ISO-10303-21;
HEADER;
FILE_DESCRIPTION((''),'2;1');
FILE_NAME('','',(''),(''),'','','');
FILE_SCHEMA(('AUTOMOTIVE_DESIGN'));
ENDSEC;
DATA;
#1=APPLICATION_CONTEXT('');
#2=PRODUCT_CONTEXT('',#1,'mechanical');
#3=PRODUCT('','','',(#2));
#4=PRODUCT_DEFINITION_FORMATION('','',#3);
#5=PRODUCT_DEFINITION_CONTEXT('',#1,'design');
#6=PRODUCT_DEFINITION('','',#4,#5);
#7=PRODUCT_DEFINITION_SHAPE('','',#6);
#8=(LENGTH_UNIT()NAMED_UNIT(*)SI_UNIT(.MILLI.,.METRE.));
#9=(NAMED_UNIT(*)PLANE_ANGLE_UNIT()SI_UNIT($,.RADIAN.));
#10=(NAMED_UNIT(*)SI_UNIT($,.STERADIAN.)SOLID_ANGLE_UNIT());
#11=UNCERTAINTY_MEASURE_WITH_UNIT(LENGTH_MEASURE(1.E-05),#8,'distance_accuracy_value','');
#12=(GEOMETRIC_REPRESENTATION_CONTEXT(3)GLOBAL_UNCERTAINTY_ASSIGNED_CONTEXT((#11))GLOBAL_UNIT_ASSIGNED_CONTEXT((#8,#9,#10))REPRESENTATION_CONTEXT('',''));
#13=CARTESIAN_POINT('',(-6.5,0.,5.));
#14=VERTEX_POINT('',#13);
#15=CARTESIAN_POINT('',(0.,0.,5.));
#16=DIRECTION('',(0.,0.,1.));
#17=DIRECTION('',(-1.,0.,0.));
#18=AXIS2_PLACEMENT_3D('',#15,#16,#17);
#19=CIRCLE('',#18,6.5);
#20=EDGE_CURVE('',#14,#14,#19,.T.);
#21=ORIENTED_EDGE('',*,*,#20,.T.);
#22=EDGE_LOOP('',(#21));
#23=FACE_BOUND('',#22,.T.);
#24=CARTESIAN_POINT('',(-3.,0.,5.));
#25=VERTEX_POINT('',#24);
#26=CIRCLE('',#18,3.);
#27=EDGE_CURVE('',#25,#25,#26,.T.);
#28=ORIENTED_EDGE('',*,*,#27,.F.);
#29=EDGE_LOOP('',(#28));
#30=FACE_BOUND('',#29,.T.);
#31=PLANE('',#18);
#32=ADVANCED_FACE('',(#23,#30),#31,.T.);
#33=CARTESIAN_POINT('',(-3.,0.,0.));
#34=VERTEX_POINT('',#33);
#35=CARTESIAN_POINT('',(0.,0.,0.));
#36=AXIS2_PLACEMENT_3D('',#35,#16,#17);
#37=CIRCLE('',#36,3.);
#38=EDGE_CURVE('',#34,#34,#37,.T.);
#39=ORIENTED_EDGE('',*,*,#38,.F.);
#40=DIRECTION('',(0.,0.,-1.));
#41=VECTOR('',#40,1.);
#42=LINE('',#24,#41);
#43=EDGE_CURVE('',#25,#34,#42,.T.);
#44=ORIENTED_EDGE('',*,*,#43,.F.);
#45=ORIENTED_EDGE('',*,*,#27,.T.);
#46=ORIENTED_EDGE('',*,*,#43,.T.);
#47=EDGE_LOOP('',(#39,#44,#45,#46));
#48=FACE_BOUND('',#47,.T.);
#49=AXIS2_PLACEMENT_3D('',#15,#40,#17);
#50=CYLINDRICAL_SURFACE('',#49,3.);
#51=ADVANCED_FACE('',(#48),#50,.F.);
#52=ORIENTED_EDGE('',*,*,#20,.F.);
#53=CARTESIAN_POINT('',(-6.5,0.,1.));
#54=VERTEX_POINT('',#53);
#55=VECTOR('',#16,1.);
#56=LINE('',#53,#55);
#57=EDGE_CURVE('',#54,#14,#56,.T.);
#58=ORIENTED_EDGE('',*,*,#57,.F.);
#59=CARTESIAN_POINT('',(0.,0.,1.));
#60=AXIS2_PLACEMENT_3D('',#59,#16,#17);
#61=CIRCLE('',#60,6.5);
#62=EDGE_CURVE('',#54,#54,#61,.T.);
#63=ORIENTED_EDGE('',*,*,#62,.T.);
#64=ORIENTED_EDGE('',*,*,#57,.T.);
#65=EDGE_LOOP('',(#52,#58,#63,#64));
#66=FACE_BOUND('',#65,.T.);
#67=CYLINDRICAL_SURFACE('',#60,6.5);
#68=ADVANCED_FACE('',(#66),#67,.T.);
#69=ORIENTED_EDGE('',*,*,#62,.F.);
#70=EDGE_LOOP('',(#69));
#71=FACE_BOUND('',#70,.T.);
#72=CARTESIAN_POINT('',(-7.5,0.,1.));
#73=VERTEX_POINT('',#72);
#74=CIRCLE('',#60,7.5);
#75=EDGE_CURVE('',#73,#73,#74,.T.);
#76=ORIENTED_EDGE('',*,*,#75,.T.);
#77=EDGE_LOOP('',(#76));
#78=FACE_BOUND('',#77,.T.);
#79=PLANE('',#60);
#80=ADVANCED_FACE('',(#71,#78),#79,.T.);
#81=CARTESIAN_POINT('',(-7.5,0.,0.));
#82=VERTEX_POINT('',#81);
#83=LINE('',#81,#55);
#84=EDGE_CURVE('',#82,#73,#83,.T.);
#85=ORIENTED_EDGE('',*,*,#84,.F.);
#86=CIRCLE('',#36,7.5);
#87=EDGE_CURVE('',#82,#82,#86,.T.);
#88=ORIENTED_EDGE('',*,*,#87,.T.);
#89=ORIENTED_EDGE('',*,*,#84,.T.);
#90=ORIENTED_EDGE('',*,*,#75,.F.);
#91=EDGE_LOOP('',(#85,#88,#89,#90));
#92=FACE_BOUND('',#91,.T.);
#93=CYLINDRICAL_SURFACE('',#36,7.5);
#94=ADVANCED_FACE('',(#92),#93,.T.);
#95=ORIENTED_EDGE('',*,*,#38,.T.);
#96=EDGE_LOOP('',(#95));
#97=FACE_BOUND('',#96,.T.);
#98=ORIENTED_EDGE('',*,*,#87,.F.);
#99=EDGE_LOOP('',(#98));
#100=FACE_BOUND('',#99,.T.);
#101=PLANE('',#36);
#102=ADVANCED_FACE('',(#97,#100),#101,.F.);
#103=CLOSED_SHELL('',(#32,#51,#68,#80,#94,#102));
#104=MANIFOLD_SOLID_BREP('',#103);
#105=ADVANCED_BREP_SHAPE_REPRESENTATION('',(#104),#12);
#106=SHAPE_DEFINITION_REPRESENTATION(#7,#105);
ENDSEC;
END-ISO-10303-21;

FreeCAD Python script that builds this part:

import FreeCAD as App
import Part
import Sketcher

doc = App.newDocument("Part")
body = doc.addObject("PartDesign::Body", "Body")

# Sketch on XZ plane
sketch1 = body.newObject("Sketcher::SketchObject", "Sketch")
sketch1.AttachmentSupport = (doc.getObject("XZ_Plane"), [""])
sketch1.MapMode = "FlatFace"
sketch1.addGeometry([
    Part.LineSegment(App.Vector(-7.5, 0, 0), App.Vector(-3, 0, 0)),  # 0
    Part.LineSegment(App.Vector(-3, 0, 0), App.Vector(-3, 5, 0)),  # 1
    Part.LineSegment(App.Vector(-3, 5, 0), App.Vector(-6.5, 5, 0)),  # 2
    Part.LineSegment(App.Vector(-6.5, 5, 0), App.Vector(-6.5, 1, 0)),  # 3
    Part.LineSegment(App.Vector(-6.5, 1, 0), App.Vector(-7.5, 1, 0)),  # 4
    Part.LineSegment(App.Vector(-7.5, 1, 0), App.Vector(-7.5, 0, 0)),  # 5
], False)
sketch1.addConstraint([
    Sketcher.Constraint("Coincident", 0, 2, 1, 1),
    Sketcher.Constraint("Coincident", 1, 2, 2, 1),
    Sketcher.Constraint("Coincident", 2, 2, 3, 1),
    Sketcher.Constraint("Coincident", 3, 2, 4, 1),
    Sketcher.Constraint("Coincident", 4, 2, 5, 1),
    Sketcher.Constraint("Coincident", 5, 2, 0, 1),
    Sketcher.Constraint("Horizontal", 0),
    Sketcher.Constraint("Vertical", 1),
    Sketcher.Constraint("Horizontal", 2),
    Sketcher.Constraint("Vertical", 3),
    Sketcher.Constraint("Horizontal", 4),
    Sketcher.Constraint("Vertical", 5),
    Sketcher.Constraint("PointOnObject", 0, 2, -1),
    Sketcher.Constraint("Equal", 4, 5),
    Sketcher.Constraint("DistanceX", 4, 2, 4, 1, 1.0),
    Sketcher.Constraint("DistanceY", 1, 1, 1, 2, 5.0),
    Sketcher.Constraint("DistanceX", 0, 1, 0, 2, 4.5),
    Sketcher.Constraint("DistanceX", 0, 2, -1, 1, 3.0),
])
revolution = body.newObject("PartDesign::Revolution", "Revolution")
revolution.Profile = sketch1
revolution.ReferenceAxis = (sketch1, ["V_Axis"])
revolution.Angle = 360

doc.recompute()
